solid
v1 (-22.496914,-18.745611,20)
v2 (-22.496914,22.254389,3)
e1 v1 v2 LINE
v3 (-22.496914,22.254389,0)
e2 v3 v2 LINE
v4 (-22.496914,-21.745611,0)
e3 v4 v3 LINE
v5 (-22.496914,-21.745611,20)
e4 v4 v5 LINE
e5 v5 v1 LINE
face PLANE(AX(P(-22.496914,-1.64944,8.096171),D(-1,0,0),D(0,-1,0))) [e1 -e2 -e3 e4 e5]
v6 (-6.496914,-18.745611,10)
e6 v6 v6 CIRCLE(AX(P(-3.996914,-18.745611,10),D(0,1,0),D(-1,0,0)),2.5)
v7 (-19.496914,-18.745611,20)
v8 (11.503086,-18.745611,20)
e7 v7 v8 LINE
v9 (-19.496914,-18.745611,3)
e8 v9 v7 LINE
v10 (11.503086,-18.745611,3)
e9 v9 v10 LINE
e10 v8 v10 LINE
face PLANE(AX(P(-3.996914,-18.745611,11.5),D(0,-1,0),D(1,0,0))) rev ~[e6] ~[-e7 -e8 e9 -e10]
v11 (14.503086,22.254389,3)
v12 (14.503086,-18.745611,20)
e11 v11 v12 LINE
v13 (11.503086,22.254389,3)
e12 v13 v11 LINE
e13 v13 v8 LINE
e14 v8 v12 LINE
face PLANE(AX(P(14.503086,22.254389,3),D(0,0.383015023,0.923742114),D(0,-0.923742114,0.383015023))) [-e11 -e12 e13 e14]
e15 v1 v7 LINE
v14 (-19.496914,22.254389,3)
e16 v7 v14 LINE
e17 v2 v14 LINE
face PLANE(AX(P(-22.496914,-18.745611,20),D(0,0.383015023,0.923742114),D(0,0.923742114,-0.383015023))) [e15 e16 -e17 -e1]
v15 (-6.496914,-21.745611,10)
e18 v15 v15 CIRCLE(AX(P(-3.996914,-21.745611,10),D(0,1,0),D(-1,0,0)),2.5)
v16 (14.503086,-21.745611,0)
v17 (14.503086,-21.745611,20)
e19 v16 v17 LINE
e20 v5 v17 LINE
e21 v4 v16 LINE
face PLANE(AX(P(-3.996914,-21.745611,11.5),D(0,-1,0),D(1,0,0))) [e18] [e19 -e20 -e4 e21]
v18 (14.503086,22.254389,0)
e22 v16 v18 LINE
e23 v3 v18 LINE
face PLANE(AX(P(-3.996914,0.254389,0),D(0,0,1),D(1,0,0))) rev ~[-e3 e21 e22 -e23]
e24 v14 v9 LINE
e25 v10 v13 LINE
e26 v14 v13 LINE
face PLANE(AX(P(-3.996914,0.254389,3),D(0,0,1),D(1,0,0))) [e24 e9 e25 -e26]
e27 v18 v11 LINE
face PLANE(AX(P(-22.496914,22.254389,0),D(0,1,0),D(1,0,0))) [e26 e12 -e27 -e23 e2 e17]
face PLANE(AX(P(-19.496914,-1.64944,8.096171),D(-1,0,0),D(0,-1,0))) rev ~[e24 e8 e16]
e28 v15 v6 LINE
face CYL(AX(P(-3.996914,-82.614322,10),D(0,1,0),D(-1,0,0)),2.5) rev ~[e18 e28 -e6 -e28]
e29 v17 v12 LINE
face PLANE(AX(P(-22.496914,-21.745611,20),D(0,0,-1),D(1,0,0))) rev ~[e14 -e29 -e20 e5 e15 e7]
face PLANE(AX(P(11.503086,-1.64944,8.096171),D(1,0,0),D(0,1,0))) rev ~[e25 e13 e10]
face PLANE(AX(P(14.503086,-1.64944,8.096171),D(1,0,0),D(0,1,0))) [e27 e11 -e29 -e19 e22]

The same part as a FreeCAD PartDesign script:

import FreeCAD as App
import Part
import Sketcher
from FreeCAD import Vector
Q = App.Units.Quantity

doc = App.newDocument("Part")
body = doc.addObject("PartDesign::Body", "Body")

# Sketch on XY plane
sketch1 = body.newObject("Sketcher::SketchObject", "Sketch")
sketch1.AttachmentSupport = (doc.getObject("XY_Plane"), [""])
sketch1.MapMode = "FlatFace"
sketch1.addGeometry([
    Part.LineSegment(Vector(-22.496914, 22.254389, 0), Vector(-22.496914, -21.745611, 0)),
    Part.LineSegment(Vector(-22.496914, -21.745611, 0), Vector(14.503086, -21.745611, 0)),
    Part.LineSegment(Vector(14.503086, -21.745611, 0), Vector(14.503086, 22.254389, 0)),
    Part.LineSegment(Vector(14.503086, 22.254389, 0), Vector(-22.496914, 22.254389, 0)),
], False)
sketch1.addConstraint([
    Sketcher.Constraint("Coincident", 0, 2, 1, 1),
    Sketcher.Constraint("Coincident", 1, 2, 2, 1),
    Sketcher.Constraint("Coincident", 2, 2, 3, 1),
    Sketcher.Constraint("Coincident", 3, 2, 0, 1),
    Sketcher.Constraint("Vertical", 0),
    Sketcher.Constraint("Horizontal", 1),
    Sketcher.Constraint("Vertical", 2),
    Sketcher.Constraint("Horizontal", 3),
    Sketcher.Constraint("DistanceX", 1, 1, 1, 2, Q("37 mm")),
    Sketcher.Constraint("DistanceY", 0, 2, 0, 1, Q("44 mm")),
    Sketcher.Constraint("DistanceY", 0, 2, -1, 1, Q("21.745611 mm")),
    Sketcher.Constraint("DistanceX", 0, 2, -1, 1, Q("22.496914 mm")),
])
pad1 = body.newObject("PartDesign::Pad", "Pad")
pad1.Profile = sketch1
pad1.Length = 3

# Sketch on XZ plane
sketch2 = body.newObject("Sketcher::SketchObject", "Sketch001")
sketch2.AttachmentSupport = (doc.getObject("XZ_Plane"), [""])
sketch2.MapMode = "FlatFace"
sketch2.AttachmentOffset = App.Placement(Vector(0, 0, 21.745611), App.Rotation())
sketch2.addGeometry([
    Part.LineSegment(Vector(-22.496914, 20, 0), Vector(-22.496914, 3, 0)),
    Part.LineSegment(Vector(-22.496914, 3, 0), Vector(14.503086, 3, 0)),
    Part.LineSegment(Vector(14.503086, 3, 0), Vector(14.503086, 20, 0)),
    Part.LineSegment(Vector(14.503086, 20, 0), Vector(-22.496914, 20, 0)),
], False)
sketch2.addConstraint([
    Sketcher.Constraint("Coincident", 0, 2, 1, 1),
    Sketcher.Constraint("Coincident", 1, 2, 2, 1),
    Sketcher.Constraint("Coincident", 2, 2, 3, 1),
    Sketcher.Constraint("Coincident", 3, 2, 0, 1),
    Sketcher.Constraint("Vertical", 0),
    Sketcher.Constraint("Horizontal", 1),
    Sketcher.Constraint("Vertical", 2),
    Sketcher.Constraint("Horizontal", 3),
    Sketcher.Constraint("DistanceX", 1, 1, 1, 2, Q("37 mm")),
    Sketcher.Constraint("DistanceY", 0, 2, 0, 1, Q("17 mm")),
    Sketcher.Constraint("DistanceY", -1, 1, 0, 2, Q("3 mm")),
    Sketcher.Constraint("DistanceX", 0, 2, -1, 1, Q("22.496914 mm")),
])
pad2 = body.newObject("PartDesign::Pad", "Pad001")
pad2.Profile = sketch2
pad2.Length = 3
pad2.Reversed = True

# Sketch on YZ plane
sketch3 = body.newObject("Sketcher::SketchObject", "Sketch002")
sketch3.AttachmentSupport = (doc.getObject("YZ_Plane"), [""])
sketch3.MapMode = "FlatFace"
sketch3.AttachmentOffset = App.Placement(Vector(0, 0, 14.503086), App.Rotation())
sketch3.addGeometry([
    Part.LineSegment(Vector(22.254389, 3, 0), Vector(-18.745611, 20, 0)),
    Part.LineSegment(Vector(-18.745611, 20, 0), Vector(-18.745611, 3, 0)),
    Part.LineSegment(Vector(-18.745611, 3, 0), Vector(22.254389, 3, 0)),
], False)
sketch3.addConstraint([
    Sketcher.Constraint("Coincident", 0, 2, 1, 1),
    Sketcher.Constraint("Coincident", 1, 2, 2, 1),
    Sketcher.Constraint("Coincident", 2, 2, 0, 1),
    Sketcher.Constraint("Vertical", 1),
    Sketcher.Constraint("Horizontal", 2),
    Sketcher.Constraint("DistanceX", 2, 1, 2, 2, Q("41 mm")),
    Sketcher.Constraint("DistanceY", 1, 2, 1, 1, Q("17 mm")),
    Sketcher.Constraint("DistanceY", -1, 1, 0, 2, Q("20 mm")),
    Sketcher.Constraint("DistanceX", 0, 2, -1, 1, Q("18.745611 mm")),
])
pad3 = body.newObject("PartDesign::Pad", "Pad002")
pad3.Profile = sketch3
pad3.Length = 3
pad3.Reversed = True

# Sketch on YZ plane
sketch4 = body.newObject("Sketcher::SketchObject", "Sketch003")
sketch4.AttachmentSupport = (doc.getObject("YZ_Plane"), [""])
sketch4.MapMode = "FlatFace"
sketch4.AttachmentOffset = App.Placement(Vector(0, 0, -22.496914), App.Rotation())
sketch4.addGeometry([
    Part.LineSegment(Vector(-18.745611, 3, 0), Vector(-18.745611, 20, 0)),
    Part.LineSegment(Vector(-18.745611, 20, 0), Vector(22.254389, 3, 0)),
    Part.LineSegment(Vector(22.254389, 3, 0), Vector(-18.745611, 3, 0)),
], False)
sketch4.addConstraint([
    Sketcher.Constraint("Coincident", 0, 2, 1, 1),
    Sketcher.Constraint("Coincident", 1, 2, 2, 1),
    Sketcher.Constraint("Coincident", 2, 2, 0, 1),
    Sketcher.Constraint("Vertical", 0),
    Sketcher.Constraint("Horizontal", 2),
    Sketcher.Constraint("DistanceX", 2, 2, 2, 1, Q("41 mm")),
    Sketcher.Constraint("DistanceY", 0, 1, 0, 2, Q("17 mm")),
    Sketcher.Constraint("DistanceY", -1, 1, 0, 2, Q("20 mm")),
    Sketcher.Constraint("DistanceX", 0, 2, -1, 1, Q("18.745611 mm")),
])
pad4 = body.newObject("PartDesign::Pad", "Pad003")
pad4.Profile = sketch4
pad4.Length = 3

# Sketch on XZ plane
sketch5 = body.newObject("Sketcher::SketchObject", "Sketch004")
sketch5.AttachmentSupport = (doc.getObject("XZ_Plane"), [""])
sketch5.MapMode = "FlatFace"
sketch5.AttachmentOffset = App.Placement(Vector(0, 0, 21.745611), App.Rotation())
sketch5.addGeometry(Part.Circle(Vector(-3.996914, 10, 0), Vector(0, 0, 1), 2.5), False)
sketch5.addConstraint([
    Sketcher.Constraint("Diameter", 0, Q("5 mm")),
    Sketcher.Constraint("DistanceY", -1, 1, 0, 3, Q("10 mm")),
    Sketcher.Constraint("DistanceX", 0, 3, -1, 1, Q("3.996914 mm")),
])
doc.recompute()
hole = body.newObject("PartDesign::Hole", "Hole")
hole.Profile = sketch5
hole.ThreadType = "None"
hole.Diameter = 5
hole.DepthType = "ThroughAll"

doc.recompute()
